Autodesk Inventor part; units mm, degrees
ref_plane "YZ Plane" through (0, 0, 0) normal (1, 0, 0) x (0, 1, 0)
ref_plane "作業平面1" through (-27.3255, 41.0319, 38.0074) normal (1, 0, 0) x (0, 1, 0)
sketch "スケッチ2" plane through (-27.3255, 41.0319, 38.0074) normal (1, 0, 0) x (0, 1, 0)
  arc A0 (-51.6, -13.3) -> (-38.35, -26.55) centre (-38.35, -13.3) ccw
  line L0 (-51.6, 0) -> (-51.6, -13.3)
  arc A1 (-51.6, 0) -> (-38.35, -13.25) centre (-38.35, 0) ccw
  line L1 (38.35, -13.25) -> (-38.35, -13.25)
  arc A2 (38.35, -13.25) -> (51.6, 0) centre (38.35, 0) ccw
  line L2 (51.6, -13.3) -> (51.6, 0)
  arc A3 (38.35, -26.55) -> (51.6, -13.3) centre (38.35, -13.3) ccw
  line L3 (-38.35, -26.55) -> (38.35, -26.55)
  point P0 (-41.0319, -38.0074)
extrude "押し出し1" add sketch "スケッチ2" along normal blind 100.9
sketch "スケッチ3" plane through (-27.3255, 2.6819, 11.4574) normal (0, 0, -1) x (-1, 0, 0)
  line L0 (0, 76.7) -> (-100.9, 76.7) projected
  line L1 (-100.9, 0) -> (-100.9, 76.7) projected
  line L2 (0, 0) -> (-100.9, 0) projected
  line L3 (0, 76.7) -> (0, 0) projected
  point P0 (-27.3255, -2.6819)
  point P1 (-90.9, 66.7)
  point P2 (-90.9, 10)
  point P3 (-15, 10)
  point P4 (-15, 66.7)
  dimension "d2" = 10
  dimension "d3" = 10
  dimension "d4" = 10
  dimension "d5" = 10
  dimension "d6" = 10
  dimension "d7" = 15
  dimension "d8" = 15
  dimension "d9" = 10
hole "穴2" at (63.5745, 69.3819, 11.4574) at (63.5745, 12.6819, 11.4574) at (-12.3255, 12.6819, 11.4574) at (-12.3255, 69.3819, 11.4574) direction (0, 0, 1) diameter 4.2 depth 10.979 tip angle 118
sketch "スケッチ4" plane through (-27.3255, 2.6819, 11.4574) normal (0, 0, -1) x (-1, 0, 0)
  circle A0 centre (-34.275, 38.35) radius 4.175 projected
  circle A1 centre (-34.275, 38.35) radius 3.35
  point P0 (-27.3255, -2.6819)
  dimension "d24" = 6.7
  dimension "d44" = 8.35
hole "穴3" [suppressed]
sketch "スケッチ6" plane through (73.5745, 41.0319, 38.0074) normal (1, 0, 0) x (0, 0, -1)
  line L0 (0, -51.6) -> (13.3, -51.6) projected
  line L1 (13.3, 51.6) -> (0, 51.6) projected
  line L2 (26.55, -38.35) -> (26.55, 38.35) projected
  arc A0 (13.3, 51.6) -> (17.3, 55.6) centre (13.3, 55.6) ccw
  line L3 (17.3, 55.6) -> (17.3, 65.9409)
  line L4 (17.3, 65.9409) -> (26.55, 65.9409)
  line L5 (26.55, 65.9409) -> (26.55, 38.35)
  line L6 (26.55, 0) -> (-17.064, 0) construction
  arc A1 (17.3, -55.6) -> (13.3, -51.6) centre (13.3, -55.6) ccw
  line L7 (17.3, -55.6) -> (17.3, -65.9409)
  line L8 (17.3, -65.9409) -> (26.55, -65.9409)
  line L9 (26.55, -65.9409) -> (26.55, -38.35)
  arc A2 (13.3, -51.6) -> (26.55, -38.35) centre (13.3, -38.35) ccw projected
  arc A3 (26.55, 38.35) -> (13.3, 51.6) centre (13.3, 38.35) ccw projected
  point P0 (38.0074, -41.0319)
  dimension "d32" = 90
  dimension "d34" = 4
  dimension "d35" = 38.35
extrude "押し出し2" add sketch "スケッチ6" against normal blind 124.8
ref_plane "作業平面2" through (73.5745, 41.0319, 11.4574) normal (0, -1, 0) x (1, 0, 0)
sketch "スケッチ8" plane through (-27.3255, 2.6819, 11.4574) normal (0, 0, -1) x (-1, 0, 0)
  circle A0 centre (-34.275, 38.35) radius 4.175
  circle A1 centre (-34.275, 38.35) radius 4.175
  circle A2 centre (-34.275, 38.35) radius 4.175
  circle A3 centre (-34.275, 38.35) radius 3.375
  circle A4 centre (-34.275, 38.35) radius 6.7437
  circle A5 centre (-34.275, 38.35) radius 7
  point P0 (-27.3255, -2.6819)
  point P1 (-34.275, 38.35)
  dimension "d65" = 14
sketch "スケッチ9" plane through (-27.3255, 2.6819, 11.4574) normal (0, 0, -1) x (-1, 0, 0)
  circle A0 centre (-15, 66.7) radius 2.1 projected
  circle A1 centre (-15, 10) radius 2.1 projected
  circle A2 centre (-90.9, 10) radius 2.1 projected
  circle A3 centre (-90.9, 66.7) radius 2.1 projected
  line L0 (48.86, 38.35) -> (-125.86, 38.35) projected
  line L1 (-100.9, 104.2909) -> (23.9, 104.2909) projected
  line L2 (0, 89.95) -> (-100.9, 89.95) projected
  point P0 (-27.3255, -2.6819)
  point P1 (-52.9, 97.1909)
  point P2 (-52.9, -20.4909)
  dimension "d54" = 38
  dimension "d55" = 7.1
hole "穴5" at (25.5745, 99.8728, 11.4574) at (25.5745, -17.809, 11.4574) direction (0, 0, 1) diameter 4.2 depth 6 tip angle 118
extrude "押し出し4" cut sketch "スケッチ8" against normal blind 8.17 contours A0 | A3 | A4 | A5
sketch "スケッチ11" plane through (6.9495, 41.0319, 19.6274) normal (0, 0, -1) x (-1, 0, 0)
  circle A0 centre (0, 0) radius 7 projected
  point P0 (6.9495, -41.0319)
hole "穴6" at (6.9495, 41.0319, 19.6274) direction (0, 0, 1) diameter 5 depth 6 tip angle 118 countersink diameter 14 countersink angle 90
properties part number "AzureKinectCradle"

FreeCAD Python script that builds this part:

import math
import FreeCAD as App
import Part
import Sketcher
from FreeCAD import Vector

doc = App.newDocument("Part")
params = doc.addObject("Spreadsheet::Sheet", "Params")
for row, (alias, value) in enumerate([
    ("sketch1_radius", "13.25 mm"),
    ("sketch1_width", "76.7 mm"),
    ("sketch1_height", "13.3 mm"),
    ("pad1_length", "100.9 mm"),
    ("sketch2_diameter", "4.2 mm"),
    ("hole_diameter", "4.2 mm"),
    ("hole_depth", "10.979 mm"),
    ("sketch3_radius", "4 mm"),
    ("sketch3_radius2", "13.25 mm"),
    ("pad2_length", "124.8 mm"),
    ("sketch4_diameter", "4.2 mm"),
    ("hole2_diameter", "4.2 mm"),
    ("hole2_depth", "6 mm"),
    ("sketch5_diameter", "14 mm"),
    ("pocket1_length", "8.17 mm"),
    ("sketch6_diameter", "5 mm"),
    ("hole3_diameter", "5 mm"),
    ("hole3_depth", "6 mm"),
    ("hole3_csink_diameter", "14 mm"),
], start=1):
    params.set(f"A{row}", alias)
    params.set(f"B{row}", "=" + value)
    params.setAlias(f"B{row}", alias)

body = doc.addObject("PartDesign::Body", "Body")

sketch1 = body.newObject("Sketcher::SketchObject", "Sketch")
sketch1.AttachmentSupport = (doc.getObject("YZ_Plane"), [""])
sketch1.MapMode = "FlatFace"
sketch1.AttachmentOffset = App.Placement(Vector(0, 0, -27.3255), App.Rotation())
sketch1.addGeometry(Part.LineSegment(Vector(-11, 38, 0), Vector(-11, 25, 0)), False)
sketch1.addGeometry(Part.ArcOfCircle(Part.Circle(Vector(3, 25, 0), Vector(0, 0, 1), 13), math.radians(180), math.radians(270)), False)
sketch1.addGeometry(Part.LineSegment(Vector(3, 11, 0), Vector(79, 11, 0)), False)
sketch1.addGeometry(Part.ArcOfCircle(Part.Circle(Vector(79, 25, 0), Vector(0, 0, 1), 13), math.radians(-90), math.radians(0)), False)
sketch1.addGeometry(Part.LineSegment(Vector(93, 25, 0), Vector(93, 38, 0)), False)
sketch1.addGeometry(Part.ArcOfCircle(Part.Circle(Vector(79, 38, 0), Vector(0, 0, 1), 13), math.radians(-90), math.radians(0)), False)
sketch1.addGeometry(Part.LineSegment(Vector(79, 25, 0), Vector(3, 25, 0)), False)
sketch1.addGeometry(Part.ArcOfCircle(Part.Circle(Vector(3, 38, 0), Vector(0, 0, 1), 13), math.radians(180), math.radians(270)), False)
sketch1.addConstraint(Sketcher.Constraint("Tangent", 0, 2, 1, 1))
sketch1.addConstraint(Sketcher.Constraint("Tangent", 1, 2, 2, 1))
sketch1.addConstraint(Sketcher.Constraint("Tangent", 2, 2, 3, 1))
sketch1.addConstraint(Sketcher.Constraint("Tangent", 3, 2, 4, 1))
sketch1.addConstraint(Sketcher.Constraint("Tangent", 4, 2, 5, 2))
sketch1.addConstraint(Sketcher.Constraint("Tangent", 5, 1, 6, 1))
sketch1.addConstraint(Sketcher.Constraint("Tangent", 6, 2, 7, 2))
sketch1.addConstraint(Sketcher.Constraint("Tangent", 7, 1, 0, 1))
sketch1.addConstraint(Sketcher.Constraint("Vertical", 0))
sketch1.addConstraint(Sketcher.Constraint("Horizontal", 2))
sketch1.addConstraint(Sketcher.Constraint("Vertical", 4))
sketch1.addConstraint(Sketcher.Constraint("Horizontal", 6))
sketch1.addConstraint(Sketcher.Constraint("Equal", 1, 3))
sketch1.addConstraint(Sketcher.Constraint("Equal", 3, 5))
sketch1.addConstraint(Sketcher.Constraint("Equal", 5, 7))
sketch1.addConstraint(Sketcher.Constraint("Radius", 1, 13.25))
sketch1.addConstraint(Sketcher.Constraint("DistanceX", 2, 1, 2, 2, 76.7))
sketch1.addConstraint(Sketcher.Constraint("DistanceY", 0, 2, 0, 1, 13.3))
sketch1.addConstraint(Sketcher.Constraint("DistanceX", -1, 1, 1, 3, 2.682))
sketch1.addConstraint(Sketcher.Constraint("DistanceY", -1, 1, 1, 3, 24.7074))
sketch1.setExpression("Constraints[15]", "Params.sketch1_radius")
sketch1.setExpression("Constraints[16]", "Params.sketch1_width")
sketch1.setExpression("Constraints[17]", "Params.sketch1_height")
pad1 = body.newObject("PartDesign::Pad", "Pad")
pad1.Profile = sketch1
pad1.setExpression("Length", "Params.pad1_length")

sketch2 = body.newObject("Sketcher::SketchObject", "Sketch001")
sketch2.AttachmentSupport = (doc.getObject("XY_Plane"), [""])
sketch2.MapMode = "FlatFace"
sketch2.AttachmentOffset = App.Placement(Vector(0, 0, 11.4574), App.Rotation())
sketch2.addGeometry(Part.Circle(Vector(63.6, 69.4, 0), Vector(0, 0, 1), 2.1), False)
sketch2.addGeometry(Part.Circle(Vector(63.6, 12.7, 0), Vector(0, 0, 1), 2.1), False)
sketch2.addGeometry(Part.Circle(Vector(-12.3, 12.7, 0), Vector(0, 0, 1), 2.1), False)
sketch2.addGeometry(Part.Circle(Vector(-12.3, 69.4, 0), Vector(0, 0, 1), 2.1), False)
sketch2.addConstraint(Sketcher.Constraint("Equal", 0, 1))
sketch2.addConstraint(Sketcher.Constraint("Equal", 1, 2))
sketch2.addConstraint(Sketcher.Constraint("Equal", 2, 3))
sketch2.addConstraint(Sketcher.Constraint("Horizontal", 1, 3, 2, 3))
sketch2.addConstraint(Sketcher.Constraint("Horizontal", 0, 3, 3, 3))
sketch2.addConstraint(Sketcher.Constraint("Vertical", 0, 3, 1, 3))
sketch2.addConstraint(Sketcher.Constraint("Vertical", 2, 3, 3, 3))
sketch2.addConstraint(Sketcher.Constraint("Diameter", 0, 4.2))
sketch2.addConstraint(Sketcher.Constraint("DistanceY", 1, 3, 0, 3, 56.7))
sketch2.addConstraint(Sketcher.Constraint("DistanceX", 2, 3, 1, 3, 75.9))
sketch2.addConstraint(Sketcher.Constraint("DistanceY", -1, 1, 0, 3, 69.382))
sketch2.addConstraint(Sketcher.Constraint("DistanceX", -1, 1, 0, 3, 63.5745))
sketch2.setExpression("Constraints[7]", "Params.sketch2_diameter")
doc.recompute()
hole = body.newObject("PartDesign::Hole", "Hole")
hole.Profile = sketch2
hole.ThreadType = "None"
hole.setExpression("Diameter", "Params.hole_diameter")
hole.DepthType = "Dimension"
hole.setExpression("Depth", "Params.hole_depth")
hole.DrillPoint = "Angled"
hole.DrillPointAngle = 118
hole.Reversed = True

sketch3 = body.newObject("Sketcher::SketchObject", "Sketch002")
sketch3.AttachmentSupport = (doc.getObject("YZ_Plane"), [""])
sketch3.MapMode = "FlatFace"
sketch3.AttachmentOffset = App.Placement(Vector(0, 0, 73.5745), App.Rotation())
sketch3.addGeometry(Part.ArcOfCircle(Part.Circle(Vector(79.4, 24.7, 0), Vector(0, 0, 1), 13.2), math.radians(-90), math.radians(0)), False)
sketch3.addGeometry(Part.LineSegment(Vector(79.4, 11.5, 0), Vector(107, 11.5, 0)), False)
sketch3.addGeometry(Part.LineSegment(Vector(107, 11.5, 0), Vector(107, 20.7, 0)), False)
sketch3.addGeometry(Part.LineSegment(Vector(107, 20.7, 0), Vector(96.6, 20.7, 0)), False)
sketch3.addGeometry(Part.ArcOfCircle(Part.Circle(Vector(96.6, 24.7, 0), Vector(0, 0, 1), 4), math.radians(180), math.radians(270)), False)
sketch3.addGeometry(Part.LineSegment(Vector(-24.9, 11.5, 0), Vector(2.7, 11.5, 0)), False)
sketch3.addGeometry(Part.ArcOfCircle(Part.Circle(Vector(2.7, 24.7, 0), Vector(0, 0, 1), 13.2), math.radians(180), math.radians(270)), False)
sketch3.addGeometry(Part.ArcOfCircle(Part.Circle(Vector(-14.6, 24.7, 0), Vector(0, 0, 1), 4), math.radians(-90), math.radians(0)), False)
sketch3.addGeometry(Part.LineSegment(Vector(-14.6, 20.7, 0), Vector(-24.9, 20.7, 0)), False)
sketch3.addGeometry(Part.LineSegment(Vector(-24.9, 20.7, 0), Vector(-24.9, 11.5, 0)), False)
sketch3.addConstraint(Sketcher.Constraint("Tangent", 0, 1, 1, 1))
sketch3.addConstraint(Sketcher.Constraint("Coincident", 1, 2, 2, 1))
sketch3.addConstraint(Sketcher.Constraint("Coincident", 2, 2, 3, 1))
sketch3.addConstraint(Sketcher.Constraint("Tangent", 3, 2, 4, 2))
sketch3.addConstraint(Sketcher.Constraint("Tangent", 4, 1, 0, 2))
sketch3.addConstraint(Sketcher.Constraint("Tangent", 5, 2, 6, 2))
sketch3.addConstraint(Sketcher.Constraint("Tangent", 6, 1, 7, 2))
sketch3.addConstraint(Sketcher.Constraint("Tangent", 7, 1, 8, 1))
sketch3.addConstraint(Sketcher.Constraint("Coincident", 8, 2, 9, 1))
sketch3.addConstraint(Sketcher.Constraint("Coincident", 9, 2, 5, 1))
sketch3.addConstraint(Sketcher.Constraint("Horizontal", 1))
sketch3.addConstraint(Sketcher.Constraint("Vertical", 2))
sketch3.addConstraint(Sketcher.Constraint("Horizontal", 3))
sketch3.addConstraint(Sketcher.Constraint("Horizontal", 5))
sketch3.addConstraint(Sketcher.Constraint("Horizontal", 8))
sketch3.addConstraint(Sketcher.Constraint("Vertical", 9))
sketch3.addConstraint(Sketcher.Constraint("Equal", 0, 6))
sketch3.addConstraint(Sketcher.Constraint("Equal", 4, 7))
sketch3.addConstraint(Sketcher.Constraint("Horizontal", 0, 3, 4, 3))
sketch3.addConstraint(Sketcher.Constraint("Horizontal", 4, 3, 6, 3))
sketch3.addConstraint(Sketcher.Constraint("Horizontal", 6, 3, 7, 3))
sketch3.addConstraint(Sketcher.Constraint("Equal", 1, 5))
sketch3.addConstraint(Sketcher.Constraint("Radius", 4, 4.0))
sketch3.addConstraint(Sketcher.Constraint("Radius", 0, 13.25))
sketch3.addConstraint(Sketcher.Constraint("DistanceX", 6, 3, 0, 3, 76.7))
sketch3.addConstraint(Sketcher.Constraint("DistanceX", 1, 1, 1, 2, 27.591))
sketch3.addConstraint(Sketcher.Constraint("DistanceX", -1, 1, 0, 3, 79.382))
sketch3.addConstraint(Sketcher.Constraint("DistanceY", -1, 1, 0, 3, 24.7074))
sketch3.setExpression("Constraints[22]", "Params.sketch3_radius")
sketch3.setExpression("Constraints[23]", "Params.sketch3_radius2")
pad2 = body.newObject("PartDesign::Pad", "Pad001")
pad2.Profile = sketch3
pad2.setExpression("Length", "Params.pad2_length")
pad2.Reversed = True

sketch4 = body.newObject("Sketcher::SketchObject", "Sketch003")
sketch4.AttachmentSupport = (doc.getObject("XY_Plane"), [""])
sketch4.MapMode = "FlatFace"
sketch4.AttachmentOffset = App.Placement(Vector(0, 0, 11.4574), App.Rotation())
sketch4.addGeometry(Part.Circle(Vector(25.6, 99.9, 0), Vector(0, 0, 1), 2.1), False)
sketch4.addGeometry(Part.Circle(Vector(25.6, -17.8, 0), Vector(0, 0, 1), 2.1), False)
sketch4.addConstraint(Sketcher.Constraint("Equal", 0, 1))
sketch4.addConstraint(Sketcher.Constraint("Vertical", 0, 3, 1, 3))
sketch4.addConstraint(Sketcher.Constraint("Diameter", 0, 4.2))
sketch4.addConstraint(Sketcher.Constraint("DistanceY", 1, 3, -1, 1, 17.809))
sketch4.addConstraint(Sketcher.Constraint("DistanceX", -1, 1, 0, 3, 25.5745))
sketch4.addConstraint(Sketcher.Constraint("DistanceY", -1, 1, 0, 3, 99.8728))
sketch4.setExpression("Constraints[2]", "Params.sketch4_diameter")
doc.recompute()
hole2 = body.newObject("PartDesign::Hole", "Hole001")
hole2.Profile = sketch4
hole2.ThreadType = "None"
hole2.setExpression("Diameter", "Params.hole2_diameter")
hole2.DepthType = "Dimension"
hole2.setExpression("Depth", "Params.hole2_depth")
hole2.DrillPoint = "Angled"
hole2.DrillPointAngle = 118
hole2.Reversed = True

sketch5 = body.newObject("Sketcher::SketchObject", "Sketch004")
sketch5.AttachmentSupport = (doc.getObject("XY_Plane"), [""])
sketch5.MapMode = "FlatFace"
sketch5.AttachmentOffset = App.Placement(Vector(0, 0, 11.4574), App.Rotation())
sketch5.addGeometry(Part.Circle(Vector(7, 41, 0), Vector(0, 0, 1), 7), False)
sketch5.addConstraint(Sketcher.Constraint("Diameter", 0, 14.0))
sketch5.addConstraint(Sketcher.Constraint("DistanceY", -1, 1, 0, 3, 41.032))
sketch5.addConstraint(Sketcher.Constraint("DistanceX", -1, 1, 0, 3, 6.9495))
sketch5.setExpression("Constraints[0]", "Params.sketch5_diameter")
pocket1 = body.newObject("PartDesign::Pocket", "Pocket")
pocket1.Profile = sketch5
pocket1.setExpression("Length", "Params.pocket1_length")
pocket1.Reversed = True

sketch6 = body.newObject("Sketcher::SketchObject", "Sketch005")
sketch6.AttachmentSupport = (doc.getObject("XY_Plane"), [""])
sketch6.MapMode = "FlatFace"
sketch6.AttachmentOffset = App.Placement(Vector(0, 0, 19.6274), App.Rotation())
sketch6.addGeometry(Part.Circle(Vector(6.9, 41, 0), Vector(0, 0, 1), 2.5), False)
sketch6.addConstraint(Sketcher.Constraint("Diameter", 0, 5.0))
sketch6.addConstraint(Sketcher.Constraint("DistanceY", -1, 1, 0, 3, 41.032))
sketch6.addConstraint(Sketcher.Constraint("DistanceX", -1, 1, 0, 3, 6.9495))
sketch6.setExpression("Constraints[0]", "Params.sketch6_diameter")
doc.recompute()
hole3 = body.newObject("PartDesign::Hole", "Hole002")
hole3.Profile = sketch6
hole3.ThreadType = "None"
hole3.setExpression("Diameter", "Params.hole3_diameter")
hole3.DepthType = "Dimension"
hole3.setExpression("Depth", "Params.hole3_depth")
hole3.DrillPoint = "Angled"
hole3.DrillPointAngle = 118
hole3.HoleCutType = "Countersink"
hole3.setExpression("HoleCutDiameter", "Params.hole3_csink_diameter")
hole3.HoleCutCountersinkAngle = 90
hole3.Reversed = True

doc.recompute()
